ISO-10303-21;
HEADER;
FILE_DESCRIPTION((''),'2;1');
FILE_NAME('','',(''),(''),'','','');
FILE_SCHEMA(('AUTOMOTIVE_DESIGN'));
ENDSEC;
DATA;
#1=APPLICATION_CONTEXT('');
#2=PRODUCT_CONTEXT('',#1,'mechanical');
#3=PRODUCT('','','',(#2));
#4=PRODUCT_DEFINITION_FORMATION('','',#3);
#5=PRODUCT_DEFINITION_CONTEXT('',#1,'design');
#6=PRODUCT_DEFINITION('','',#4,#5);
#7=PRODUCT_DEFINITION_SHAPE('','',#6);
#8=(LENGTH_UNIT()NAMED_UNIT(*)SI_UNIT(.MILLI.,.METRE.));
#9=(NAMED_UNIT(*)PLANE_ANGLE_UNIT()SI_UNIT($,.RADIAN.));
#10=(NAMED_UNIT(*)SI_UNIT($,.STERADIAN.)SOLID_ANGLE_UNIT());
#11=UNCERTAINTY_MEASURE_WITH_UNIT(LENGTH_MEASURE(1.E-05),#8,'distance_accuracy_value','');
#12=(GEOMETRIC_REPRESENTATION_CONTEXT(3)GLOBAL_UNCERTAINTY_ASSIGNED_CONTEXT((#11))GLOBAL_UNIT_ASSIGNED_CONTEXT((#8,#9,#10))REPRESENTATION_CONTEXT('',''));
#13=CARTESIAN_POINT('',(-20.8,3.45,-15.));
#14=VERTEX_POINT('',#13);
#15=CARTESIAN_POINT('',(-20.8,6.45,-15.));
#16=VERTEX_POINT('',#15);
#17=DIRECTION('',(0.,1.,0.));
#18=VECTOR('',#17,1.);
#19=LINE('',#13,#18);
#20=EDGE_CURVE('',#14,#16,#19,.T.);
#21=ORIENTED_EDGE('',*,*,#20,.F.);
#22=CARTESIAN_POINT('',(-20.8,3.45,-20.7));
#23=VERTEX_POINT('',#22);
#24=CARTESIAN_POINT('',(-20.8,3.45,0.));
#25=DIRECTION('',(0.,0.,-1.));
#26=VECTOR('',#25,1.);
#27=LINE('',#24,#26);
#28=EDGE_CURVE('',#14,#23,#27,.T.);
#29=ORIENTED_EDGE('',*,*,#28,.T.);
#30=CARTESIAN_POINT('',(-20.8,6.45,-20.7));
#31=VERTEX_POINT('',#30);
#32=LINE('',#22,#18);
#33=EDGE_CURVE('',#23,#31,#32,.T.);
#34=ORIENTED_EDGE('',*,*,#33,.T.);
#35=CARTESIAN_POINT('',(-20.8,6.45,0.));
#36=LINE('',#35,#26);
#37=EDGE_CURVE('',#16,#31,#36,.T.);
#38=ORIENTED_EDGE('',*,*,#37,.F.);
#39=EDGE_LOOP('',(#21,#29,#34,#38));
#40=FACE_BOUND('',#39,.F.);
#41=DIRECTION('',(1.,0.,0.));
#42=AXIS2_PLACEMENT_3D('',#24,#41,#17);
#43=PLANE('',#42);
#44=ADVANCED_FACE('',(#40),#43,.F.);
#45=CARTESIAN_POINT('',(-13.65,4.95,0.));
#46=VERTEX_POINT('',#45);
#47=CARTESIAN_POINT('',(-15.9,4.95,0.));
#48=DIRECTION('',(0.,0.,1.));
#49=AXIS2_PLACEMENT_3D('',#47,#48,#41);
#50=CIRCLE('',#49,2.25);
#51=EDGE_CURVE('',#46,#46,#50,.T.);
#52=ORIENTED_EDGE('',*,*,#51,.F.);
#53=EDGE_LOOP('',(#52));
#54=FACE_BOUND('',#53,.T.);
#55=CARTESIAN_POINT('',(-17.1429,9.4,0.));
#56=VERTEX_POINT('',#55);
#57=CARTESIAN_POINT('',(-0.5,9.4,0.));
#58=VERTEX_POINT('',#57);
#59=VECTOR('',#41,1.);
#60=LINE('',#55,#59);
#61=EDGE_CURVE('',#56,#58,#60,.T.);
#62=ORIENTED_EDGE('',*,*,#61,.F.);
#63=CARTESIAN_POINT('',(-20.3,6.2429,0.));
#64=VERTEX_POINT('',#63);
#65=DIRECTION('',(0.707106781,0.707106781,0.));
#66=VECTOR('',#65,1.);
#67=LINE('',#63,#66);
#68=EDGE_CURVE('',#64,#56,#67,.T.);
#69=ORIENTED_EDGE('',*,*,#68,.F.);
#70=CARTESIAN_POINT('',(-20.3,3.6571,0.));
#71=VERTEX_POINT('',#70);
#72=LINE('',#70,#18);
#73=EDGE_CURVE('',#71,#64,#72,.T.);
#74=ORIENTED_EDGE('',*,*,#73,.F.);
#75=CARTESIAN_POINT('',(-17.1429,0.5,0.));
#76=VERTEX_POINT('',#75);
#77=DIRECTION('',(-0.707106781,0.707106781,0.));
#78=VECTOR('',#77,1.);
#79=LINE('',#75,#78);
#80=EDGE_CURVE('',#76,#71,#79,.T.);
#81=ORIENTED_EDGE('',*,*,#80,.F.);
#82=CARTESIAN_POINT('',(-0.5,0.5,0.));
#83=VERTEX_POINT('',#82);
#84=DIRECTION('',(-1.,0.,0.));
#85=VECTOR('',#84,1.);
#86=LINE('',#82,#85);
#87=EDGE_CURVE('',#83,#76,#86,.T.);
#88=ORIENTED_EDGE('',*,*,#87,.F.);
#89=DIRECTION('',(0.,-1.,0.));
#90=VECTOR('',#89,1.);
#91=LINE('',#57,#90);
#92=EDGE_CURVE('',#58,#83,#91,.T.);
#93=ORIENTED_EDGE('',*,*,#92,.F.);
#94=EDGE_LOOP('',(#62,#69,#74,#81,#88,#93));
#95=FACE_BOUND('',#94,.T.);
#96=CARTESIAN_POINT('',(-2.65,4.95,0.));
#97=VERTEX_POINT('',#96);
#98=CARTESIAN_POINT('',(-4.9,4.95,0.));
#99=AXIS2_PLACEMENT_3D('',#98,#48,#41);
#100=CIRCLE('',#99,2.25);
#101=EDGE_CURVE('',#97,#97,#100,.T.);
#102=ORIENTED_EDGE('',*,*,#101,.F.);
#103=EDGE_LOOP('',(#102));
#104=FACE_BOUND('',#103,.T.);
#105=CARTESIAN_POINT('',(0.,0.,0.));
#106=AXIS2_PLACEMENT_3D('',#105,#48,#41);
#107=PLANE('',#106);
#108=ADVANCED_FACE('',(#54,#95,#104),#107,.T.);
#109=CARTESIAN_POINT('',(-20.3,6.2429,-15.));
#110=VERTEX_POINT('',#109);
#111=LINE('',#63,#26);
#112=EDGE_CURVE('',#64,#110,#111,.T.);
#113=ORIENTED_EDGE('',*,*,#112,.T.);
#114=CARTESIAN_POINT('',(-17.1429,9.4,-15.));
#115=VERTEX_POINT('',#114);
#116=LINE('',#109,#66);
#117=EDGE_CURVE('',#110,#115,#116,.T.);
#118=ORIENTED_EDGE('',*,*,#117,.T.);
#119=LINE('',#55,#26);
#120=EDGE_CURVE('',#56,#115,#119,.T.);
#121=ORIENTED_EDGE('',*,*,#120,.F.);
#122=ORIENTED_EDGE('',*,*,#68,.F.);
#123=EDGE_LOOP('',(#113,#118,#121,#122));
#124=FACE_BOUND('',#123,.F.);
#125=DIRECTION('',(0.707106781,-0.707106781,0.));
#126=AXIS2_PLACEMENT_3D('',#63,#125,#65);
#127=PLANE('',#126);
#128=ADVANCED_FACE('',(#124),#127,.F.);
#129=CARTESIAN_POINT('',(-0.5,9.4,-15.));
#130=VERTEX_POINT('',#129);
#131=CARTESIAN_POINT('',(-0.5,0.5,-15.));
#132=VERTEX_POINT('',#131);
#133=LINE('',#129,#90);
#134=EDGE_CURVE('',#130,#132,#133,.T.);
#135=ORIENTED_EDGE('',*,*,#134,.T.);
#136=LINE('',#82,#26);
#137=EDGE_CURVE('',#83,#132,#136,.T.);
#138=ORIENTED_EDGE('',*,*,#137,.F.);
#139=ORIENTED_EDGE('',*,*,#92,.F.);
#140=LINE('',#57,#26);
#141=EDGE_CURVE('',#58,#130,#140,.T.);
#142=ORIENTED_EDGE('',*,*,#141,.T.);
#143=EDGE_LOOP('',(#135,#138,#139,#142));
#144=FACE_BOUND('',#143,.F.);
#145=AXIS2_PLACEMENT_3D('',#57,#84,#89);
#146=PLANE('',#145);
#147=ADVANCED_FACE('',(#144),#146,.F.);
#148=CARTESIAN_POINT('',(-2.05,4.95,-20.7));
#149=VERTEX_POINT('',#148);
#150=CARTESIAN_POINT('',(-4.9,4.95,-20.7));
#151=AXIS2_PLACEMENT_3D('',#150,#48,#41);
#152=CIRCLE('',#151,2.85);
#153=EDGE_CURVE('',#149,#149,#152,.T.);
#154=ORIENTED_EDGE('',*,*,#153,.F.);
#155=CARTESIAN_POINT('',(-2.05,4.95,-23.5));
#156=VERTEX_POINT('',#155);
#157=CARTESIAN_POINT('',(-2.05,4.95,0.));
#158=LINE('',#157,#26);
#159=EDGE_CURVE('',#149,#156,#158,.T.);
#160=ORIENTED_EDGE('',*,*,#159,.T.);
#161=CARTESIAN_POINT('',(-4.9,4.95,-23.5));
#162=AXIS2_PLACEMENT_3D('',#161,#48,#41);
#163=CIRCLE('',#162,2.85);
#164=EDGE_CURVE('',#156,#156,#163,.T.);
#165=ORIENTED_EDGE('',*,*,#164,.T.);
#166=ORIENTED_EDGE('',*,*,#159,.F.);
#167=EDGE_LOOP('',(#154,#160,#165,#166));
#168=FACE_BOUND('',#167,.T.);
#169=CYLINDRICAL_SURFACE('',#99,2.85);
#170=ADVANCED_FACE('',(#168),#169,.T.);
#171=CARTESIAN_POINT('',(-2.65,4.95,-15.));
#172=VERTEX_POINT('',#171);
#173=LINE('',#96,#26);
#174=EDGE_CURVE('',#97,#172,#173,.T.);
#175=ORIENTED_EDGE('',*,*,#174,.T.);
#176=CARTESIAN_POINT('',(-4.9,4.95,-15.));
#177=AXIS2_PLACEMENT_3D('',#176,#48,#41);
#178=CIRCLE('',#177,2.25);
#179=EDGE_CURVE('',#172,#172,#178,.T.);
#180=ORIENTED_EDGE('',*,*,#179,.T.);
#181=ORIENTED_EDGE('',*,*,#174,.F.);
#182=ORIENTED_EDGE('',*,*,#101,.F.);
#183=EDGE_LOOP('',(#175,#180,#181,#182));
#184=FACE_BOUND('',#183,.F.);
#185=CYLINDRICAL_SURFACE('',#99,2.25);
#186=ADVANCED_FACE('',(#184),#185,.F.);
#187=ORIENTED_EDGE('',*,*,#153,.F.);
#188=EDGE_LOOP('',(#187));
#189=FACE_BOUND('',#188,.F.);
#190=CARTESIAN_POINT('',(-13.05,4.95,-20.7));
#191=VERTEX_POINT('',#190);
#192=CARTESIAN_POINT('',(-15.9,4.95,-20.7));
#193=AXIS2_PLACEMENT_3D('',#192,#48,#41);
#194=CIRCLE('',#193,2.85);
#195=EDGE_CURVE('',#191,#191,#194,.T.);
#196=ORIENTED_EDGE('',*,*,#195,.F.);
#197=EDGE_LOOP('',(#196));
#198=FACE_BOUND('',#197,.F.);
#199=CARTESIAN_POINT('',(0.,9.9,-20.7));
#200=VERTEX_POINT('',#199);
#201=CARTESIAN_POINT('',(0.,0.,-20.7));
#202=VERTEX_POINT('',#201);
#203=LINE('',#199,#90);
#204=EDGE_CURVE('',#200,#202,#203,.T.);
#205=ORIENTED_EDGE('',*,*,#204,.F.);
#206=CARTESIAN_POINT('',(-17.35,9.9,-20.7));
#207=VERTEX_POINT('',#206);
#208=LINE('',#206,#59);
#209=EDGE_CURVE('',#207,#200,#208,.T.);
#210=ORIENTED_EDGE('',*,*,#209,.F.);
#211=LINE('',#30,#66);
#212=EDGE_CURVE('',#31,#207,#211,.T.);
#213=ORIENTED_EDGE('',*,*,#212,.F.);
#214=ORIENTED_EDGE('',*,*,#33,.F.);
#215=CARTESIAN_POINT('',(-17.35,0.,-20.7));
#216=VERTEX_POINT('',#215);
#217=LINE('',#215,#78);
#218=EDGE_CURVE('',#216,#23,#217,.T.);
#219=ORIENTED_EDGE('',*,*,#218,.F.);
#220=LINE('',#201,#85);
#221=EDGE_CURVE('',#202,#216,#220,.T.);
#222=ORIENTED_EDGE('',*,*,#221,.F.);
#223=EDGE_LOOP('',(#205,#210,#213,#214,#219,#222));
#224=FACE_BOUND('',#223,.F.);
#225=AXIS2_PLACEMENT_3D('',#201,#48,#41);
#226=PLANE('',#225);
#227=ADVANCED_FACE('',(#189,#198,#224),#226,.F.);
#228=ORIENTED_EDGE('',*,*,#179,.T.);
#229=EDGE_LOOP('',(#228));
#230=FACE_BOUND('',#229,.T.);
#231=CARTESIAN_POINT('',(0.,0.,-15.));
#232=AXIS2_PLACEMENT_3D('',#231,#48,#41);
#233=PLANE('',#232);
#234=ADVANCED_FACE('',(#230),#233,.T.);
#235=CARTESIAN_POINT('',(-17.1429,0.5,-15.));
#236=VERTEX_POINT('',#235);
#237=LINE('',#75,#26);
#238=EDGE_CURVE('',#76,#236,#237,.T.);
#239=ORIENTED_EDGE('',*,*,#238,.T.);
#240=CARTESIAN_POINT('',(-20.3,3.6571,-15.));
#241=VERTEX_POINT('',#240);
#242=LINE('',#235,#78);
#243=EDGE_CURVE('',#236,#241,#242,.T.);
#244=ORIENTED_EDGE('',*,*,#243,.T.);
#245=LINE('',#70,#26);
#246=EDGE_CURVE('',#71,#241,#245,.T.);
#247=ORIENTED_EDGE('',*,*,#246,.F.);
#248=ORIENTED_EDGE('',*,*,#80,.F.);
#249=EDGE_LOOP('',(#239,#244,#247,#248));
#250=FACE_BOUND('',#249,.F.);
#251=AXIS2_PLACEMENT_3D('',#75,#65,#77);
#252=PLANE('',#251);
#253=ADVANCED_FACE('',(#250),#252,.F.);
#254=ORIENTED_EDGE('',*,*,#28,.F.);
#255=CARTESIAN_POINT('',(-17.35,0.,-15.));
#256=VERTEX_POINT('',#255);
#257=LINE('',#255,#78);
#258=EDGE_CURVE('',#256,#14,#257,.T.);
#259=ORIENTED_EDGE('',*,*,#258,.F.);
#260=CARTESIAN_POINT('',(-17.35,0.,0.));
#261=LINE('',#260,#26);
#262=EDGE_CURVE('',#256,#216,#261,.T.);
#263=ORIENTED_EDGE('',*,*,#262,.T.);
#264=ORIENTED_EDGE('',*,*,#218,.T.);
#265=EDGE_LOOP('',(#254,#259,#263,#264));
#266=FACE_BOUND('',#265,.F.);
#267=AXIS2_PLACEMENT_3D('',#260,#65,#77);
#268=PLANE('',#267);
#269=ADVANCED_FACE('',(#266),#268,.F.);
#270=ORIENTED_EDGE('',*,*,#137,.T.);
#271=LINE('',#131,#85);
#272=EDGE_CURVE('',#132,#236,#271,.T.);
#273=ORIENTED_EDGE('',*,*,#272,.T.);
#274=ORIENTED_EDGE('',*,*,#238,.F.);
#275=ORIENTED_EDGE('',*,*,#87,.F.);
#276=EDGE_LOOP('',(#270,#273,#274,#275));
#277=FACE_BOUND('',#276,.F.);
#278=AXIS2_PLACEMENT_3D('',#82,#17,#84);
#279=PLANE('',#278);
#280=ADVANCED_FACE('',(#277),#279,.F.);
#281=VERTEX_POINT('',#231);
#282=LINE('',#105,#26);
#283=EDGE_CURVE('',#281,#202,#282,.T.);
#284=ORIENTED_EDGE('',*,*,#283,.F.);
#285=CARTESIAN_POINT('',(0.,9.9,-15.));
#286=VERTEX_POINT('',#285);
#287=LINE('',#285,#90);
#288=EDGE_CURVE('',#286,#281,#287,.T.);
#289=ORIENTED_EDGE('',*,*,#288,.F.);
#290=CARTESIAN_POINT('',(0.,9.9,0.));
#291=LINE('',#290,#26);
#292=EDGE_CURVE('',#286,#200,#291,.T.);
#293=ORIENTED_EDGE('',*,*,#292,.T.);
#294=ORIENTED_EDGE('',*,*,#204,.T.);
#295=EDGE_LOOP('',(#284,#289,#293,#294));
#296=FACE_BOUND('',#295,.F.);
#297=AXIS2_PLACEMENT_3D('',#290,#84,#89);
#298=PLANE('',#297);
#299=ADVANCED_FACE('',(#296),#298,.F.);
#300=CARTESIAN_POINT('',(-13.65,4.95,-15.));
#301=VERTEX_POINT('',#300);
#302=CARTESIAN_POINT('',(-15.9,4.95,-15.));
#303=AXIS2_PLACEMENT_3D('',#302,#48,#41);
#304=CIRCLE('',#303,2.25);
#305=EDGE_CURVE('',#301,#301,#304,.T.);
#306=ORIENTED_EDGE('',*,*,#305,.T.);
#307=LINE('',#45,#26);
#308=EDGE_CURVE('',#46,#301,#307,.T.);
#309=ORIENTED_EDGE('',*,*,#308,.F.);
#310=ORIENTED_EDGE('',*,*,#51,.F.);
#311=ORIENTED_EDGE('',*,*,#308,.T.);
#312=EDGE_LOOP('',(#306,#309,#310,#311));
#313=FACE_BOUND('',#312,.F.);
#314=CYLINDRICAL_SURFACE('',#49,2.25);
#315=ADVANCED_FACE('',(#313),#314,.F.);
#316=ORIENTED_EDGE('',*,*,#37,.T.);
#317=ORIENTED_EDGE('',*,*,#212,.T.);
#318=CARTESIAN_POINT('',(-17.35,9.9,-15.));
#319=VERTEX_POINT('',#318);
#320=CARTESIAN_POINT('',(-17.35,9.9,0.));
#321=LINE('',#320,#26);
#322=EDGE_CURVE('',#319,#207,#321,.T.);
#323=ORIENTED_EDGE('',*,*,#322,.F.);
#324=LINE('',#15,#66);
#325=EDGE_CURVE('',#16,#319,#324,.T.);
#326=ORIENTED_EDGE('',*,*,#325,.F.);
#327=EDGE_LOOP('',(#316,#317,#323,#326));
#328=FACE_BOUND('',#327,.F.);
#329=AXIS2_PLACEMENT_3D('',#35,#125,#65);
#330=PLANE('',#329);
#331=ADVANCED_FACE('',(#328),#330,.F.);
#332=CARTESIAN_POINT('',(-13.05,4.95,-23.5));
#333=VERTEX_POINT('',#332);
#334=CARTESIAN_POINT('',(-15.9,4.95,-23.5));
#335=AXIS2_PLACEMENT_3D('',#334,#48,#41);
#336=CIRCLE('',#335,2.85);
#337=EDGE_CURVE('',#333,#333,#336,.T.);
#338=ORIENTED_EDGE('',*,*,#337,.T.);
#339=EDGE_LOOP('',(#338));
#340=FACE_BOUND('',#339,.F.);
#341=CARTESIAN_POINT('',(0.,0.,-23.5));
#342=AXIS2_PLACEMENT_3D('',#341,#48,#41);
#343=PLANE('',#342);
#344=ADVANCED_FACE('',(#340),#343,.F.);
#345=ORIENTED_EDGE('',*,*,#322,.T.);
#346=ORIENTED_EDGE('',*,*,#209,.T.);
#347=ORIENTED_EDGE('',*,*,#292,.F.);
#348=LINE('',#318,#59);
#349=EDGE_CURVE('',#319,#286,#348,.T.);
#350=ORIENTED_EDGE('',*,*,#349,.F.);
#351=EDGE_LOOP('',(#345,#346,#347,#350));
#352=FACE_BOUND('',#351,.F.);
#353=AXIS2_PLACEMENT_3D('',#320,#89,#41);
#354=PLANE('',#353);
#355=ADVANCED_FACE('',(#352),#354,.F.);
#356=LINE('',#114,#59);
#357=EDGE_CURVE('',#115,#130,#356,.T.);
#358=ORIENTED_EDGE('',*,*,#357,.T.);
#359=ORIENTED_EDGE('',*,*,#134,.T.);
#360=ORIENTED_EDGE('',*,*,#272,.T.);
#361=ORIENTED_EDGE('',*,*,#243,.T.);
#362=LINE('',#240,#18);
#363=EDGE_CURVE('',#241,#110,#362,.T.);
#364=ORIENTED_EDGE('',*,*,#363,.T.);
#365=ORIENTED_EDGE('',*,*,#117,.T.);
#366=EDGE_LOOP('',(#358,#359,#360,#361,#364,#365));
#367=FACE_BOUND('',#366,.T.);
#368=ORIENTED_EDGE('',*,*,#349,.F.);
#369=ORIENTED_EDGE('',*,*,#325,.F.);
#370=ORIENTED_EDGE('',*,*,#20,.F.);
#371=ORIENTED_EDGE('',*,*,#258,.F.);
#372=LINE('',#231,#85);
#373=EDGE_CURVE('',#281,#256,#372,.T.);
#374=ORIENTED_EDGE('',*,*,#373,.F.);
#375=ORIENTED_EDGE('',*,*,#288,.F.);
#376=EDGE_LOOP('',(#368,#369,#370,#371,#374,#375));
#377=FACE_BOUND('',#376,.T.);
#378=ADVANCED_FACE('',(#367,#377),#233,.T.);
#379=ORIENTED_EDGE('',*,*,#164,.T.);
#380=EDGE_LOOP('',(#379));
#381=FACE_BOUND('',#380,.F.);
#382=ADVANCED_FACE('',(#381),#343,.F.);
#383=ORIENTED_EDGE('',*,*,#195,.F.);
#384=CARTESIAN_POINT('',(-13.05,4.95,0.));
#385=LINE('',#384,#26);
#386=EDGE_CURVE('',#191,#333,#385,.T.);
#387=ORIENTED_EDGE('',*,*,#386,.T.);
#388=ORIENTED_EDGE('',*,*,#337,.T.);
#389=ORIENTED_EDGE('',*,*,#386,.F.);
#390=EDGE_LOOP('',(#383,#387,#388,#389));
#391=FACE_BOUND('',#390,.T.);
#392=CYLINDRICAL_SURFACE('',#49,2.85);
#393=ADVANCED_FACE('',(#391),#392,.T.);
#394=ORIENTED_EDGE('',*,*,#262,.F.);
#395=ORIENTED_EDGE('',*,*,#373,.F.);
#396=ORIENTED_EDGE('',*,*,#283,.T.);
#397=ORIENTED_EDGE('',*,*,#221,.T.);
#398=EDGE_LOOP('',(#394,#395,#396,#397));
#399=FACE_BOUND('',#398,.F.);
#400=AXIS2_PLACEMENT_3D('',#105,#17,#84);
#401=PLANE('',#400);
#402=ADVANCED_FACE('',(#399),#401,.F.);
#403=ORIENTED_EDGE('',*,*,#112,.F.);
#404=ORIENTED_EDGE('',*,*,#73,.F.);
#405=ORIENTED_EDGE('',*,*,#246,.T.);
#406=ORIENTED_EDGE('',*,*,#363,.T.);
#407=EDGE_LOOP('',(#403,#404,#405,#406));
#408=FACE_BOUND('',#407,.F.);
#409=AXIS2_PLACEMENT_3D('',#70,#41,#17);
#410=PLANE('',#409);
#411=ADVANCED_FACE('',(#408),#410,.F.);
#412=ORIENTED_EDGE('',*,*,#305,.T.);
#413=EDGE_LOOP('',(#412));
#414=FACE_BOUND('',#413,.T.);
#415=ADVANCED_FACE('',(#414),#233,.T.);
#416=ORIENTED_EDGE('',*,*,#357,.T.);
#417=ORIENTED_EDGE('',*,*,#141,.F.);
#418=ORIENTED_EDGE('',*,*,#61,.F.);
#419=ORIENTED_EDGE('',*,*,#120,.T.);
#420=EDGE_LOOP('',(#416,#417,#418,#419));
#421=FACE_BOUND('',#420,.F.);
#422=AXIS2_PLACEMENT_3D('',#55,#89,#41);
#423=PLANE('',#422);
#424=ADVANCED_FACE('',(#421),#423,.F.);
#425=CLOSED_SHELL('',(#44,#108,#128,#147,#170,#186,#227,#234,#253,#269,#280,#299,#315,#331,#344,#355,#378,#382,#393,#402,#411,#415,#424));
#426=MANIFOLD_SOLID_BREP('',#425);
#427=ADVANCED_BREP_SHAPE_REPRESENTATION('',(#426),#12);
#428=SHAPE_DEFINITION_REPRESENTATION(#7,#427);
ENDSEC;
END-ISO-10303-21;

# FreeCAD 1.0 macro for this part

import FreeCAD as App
import Part
import Sketcher
from FreeCAD import Vector


def add_polygon(sketch, points):
    """Adds a closed chain of lines whose ends are joined by coincident constraints."""
    first, n = sketch.GeometryCount, len(points)
    for a, b in zip(points, points[1:] + points[:1]):
        sketch.addGeometry(Part.LineSegment(App.Vector(*a, 0), App.Vector(*b, 0)), False)
    for i in range(n):
        sketch.addConstraint(Sketcher.Constraint("Coincident", first + i, 2, first + (i + 1) % n, 1))

doc = App.newDocument("Part")
body = doc.addObject("PartDesign::Body", "Body")

sketch1 = body.newObject("Sketcher::SketchObject", "Sketch")
sketch1.AttachmentSupport = (doc.getObject("XY_Plane"), [""])
sketch1.MapMode = "FlatFace"
add_polygon(sketch1, [(0, 0), (0, 9.9), (-17.4, 9.9), (-20.8, 6.5), (-20.8, 3.5), (-17.4, 0)])
sketch1.addConstraint([
    Sketcher.Constraint("Vertical", 0),
    Sketcher.Constraint("Horizontal", 1),
    Sketcher.Constraint("Vertical", 3),
    Sketcher.Constraint("Horizontal", 5),
    Sketcher.Constraint("Coincident", 5, 2, -1, 1),
    Sketcher.Constraint("Perpendicular", 2, 4),
    Sketcher.Constraint("Vertical", 1, 2, 4, 2),
    Sketcher.Constraint("Equal", 2, 4),
    Sketcher.Constraint("DistanceY", 3, 2, 3, 1, 3.0),
    Sketcher.Constraint("DistanceY", 0, 1, 0, 2, 9.9),
    Sketcher.Constraint("DistanceX", 2, 2, -1, 1, 20.8),
])
pad1 = body.newObject("PartDesign::Pad", "Pad")
pad1.Profile = sketch1
pad1.Length = 20.7
pad1.Reversed = True

sketch2 = body.newObject("Sketcher::SketchObject", "Sketch001")
sketch2.AttachmentSupport = (doc.getObject("XY_Plane"), [""])
sketch2.MapMode = "FlatFace"
sketch2.addGeometry([
    Part.Circle(Vector(-15.9, 5, 0), Vector(0, 0, 1), 2.9),
    Part.Circle(Vector(-4.9, 5, 0), Vector(0, 0, 1), 2.9),
], False)
sketch2.addConstraint([
    Sketcher.Constraint("Equal", 0, 1),
    Sketcher.Constraint("Horizontal", 0, 3, 1, 3),
    Sketcher.Constraint("Diameter", 0, 5.7),
    Sketcher.Constraint("DistanceX", 0, 3, 1, 3, 11.0),
    Sketcher.Constraint("DistanceX", 1, 3, -1, 1, 4.9),
    Sketcher.Constraint("DistanceY", -1, 1, 0, 3, 4.95),
])
pad2 = body.newObject("PartDesign::Pad", "Pad001")
pad2.Profile = sketch2
pad2.Length = 23.5
pad2.Reversed = True

sketch3 = body.newObject("Sketcher::SketchObject", "Sketch002")
sketch3.AttachmentSupport = (doc.getObject("XY_Plane"), [""])
sketch3.MapMode = "FlatFace"
add_polygon(sketch3, [(0, 0), (0, 9.9), (-17.4, 9.9), (-20.8, 6.5), (-20.8, 3.5), (-17.4, 0)])
add_polygon(sketch3, [(-17.1, 9.4), (-0.5, 9.4), (-0.5, 0.5), (-17.1, 0.5), (-20.3, 3.7), (-20.3, 6.2)])
sketch3.addGeometry(Part.Circle(Vector(-15.9, 5, 0), Vector(0, 0, 1), 2.2), False)
sketch3.addGeometry(Part.Circle(Vector(-4.9, 5, 0), Vector(0, 0, 1), 2.2), False)
sketch3.addConstraint([
    Sketcher.Constraint("Vertical", 0),
    Sketcher.Constraint("Horizontal", 1),
    Sketcher.Constraint("Vertical", 3),
    Sketcher.Constraint("Horizontal", 5),
    Sketcher.Constraint("Horizontal", 6),
    Sketcher.Constraint("Vertical", 7),
    Sketcher.Constraint("Horizontal", 8),
    Sketcher.Constraint("Vertical", 10),
    Sketcher.Constraint("Coincident", 5, 2, -1, 1),
    Sketcher.Constraint("Equal", 12, 13),
    Sketcher.Constraint("Perpendicular", 2, 4),
    Sketcher.Constraint("Parallel", 4, 9),
    Sketcher.Constraint("Perpendicular", 9, 11),
    Sketcher.Constraint("Horizontal", 12, 3, 13, 3),
    Sketcher.Constraint("Vertical", 1, 2, 4, 2),
    Sketcher.Constraint("Vertical", 8, 2, 11, 2),
    Sketcher.Constraint("Equal", 2, 4),
    Sketcher.Constraint("Diameter", 12, 4.5),
    Sketcher.Constraint("DistanceY", 3, 2, 3, 1, 3.0),
    Sketcher.Constraint("DistanceY", 0, 1, 0, 2, 9.9),
    Sketcher.Constraint("DistanceX", 12, 3, 13, 3, 11.0),
    Sketcher.Constraint("DistanceX", 13, 3, -1, 1, 4.9),
    Sketcher.Constraint("DistanceX", 2, 2, -1, 1, 20.8),
    Sketcher.Constraint("DistanceX", 6, 2, -1, 1, 0.5),
    Sketcher.Constraint("DistanceY", -1, 1, 7, 2, 0.5),
    Sketcher.Constraint("DistanceY", 6, 2, 0, 2, 0.5),
    Sketcher.Constraint("DistanceX", 3, 2, 9, 2, 0.5),
    Sketcher.Constraint("DistanceY", 12, 3, 2, 2, 1.5),
    Sketcher.Constraint("DistanceX", 6, 1, 6, 2, 16.643),
])
pocket1 = body.newObject("PartDesign::Pocket", "Pocket")
pocket1.Profile = sketch3
pocket1.Length = 15

doc.recompute()
